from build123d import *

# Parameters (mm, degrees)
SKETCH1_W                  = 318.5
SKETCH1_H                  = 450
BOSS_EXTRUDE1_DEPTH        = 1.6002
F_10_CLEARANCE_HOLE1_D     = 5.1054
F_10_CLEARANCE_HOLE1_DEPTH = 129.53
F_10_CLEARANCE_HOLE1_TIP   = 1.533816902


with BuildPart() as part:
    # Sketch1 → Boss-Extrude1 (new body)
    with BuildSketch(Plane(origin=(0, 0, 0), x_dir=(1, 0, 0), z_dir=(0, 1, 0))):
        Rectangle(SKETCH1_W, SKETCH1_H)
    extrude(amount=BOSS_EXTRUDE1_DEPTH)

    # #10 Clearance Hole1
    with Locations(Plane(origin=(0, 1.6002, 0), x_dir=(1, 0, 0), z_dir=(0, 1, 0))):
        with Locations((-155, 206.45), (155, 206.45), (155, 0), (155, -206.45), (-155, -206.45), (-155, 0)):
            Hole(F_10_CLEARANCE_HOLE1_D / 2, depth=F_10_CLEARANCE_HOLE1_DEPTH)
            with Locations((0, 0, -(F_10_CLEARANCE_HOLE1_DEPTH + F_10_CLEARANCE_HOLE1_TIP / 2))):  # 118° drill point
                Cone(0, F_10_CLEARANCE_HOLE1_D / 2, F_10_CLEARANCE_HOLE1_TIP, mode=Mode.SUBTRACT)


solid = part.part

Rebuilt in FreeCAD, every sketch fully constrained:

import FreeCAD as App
import Part
import Sketcher
from FreeCAD import Vector


def add_polygon(sketch, points):
    """Adds a closed chain of lines whose ends are joined by coincident constraints."""
    first, n = sketch.GeometryCount, len(points)
    for a, b in zip(points, points[1:] + points[:1]):
        sketch.addGeometry(Part.LineSegment(App.Vector(*a, 0), App.Vector(*b, 0)), False)
    for i in range(n):
        sketch.addConstraint(Sketcher.Constraint("Coincident", first + i, 2, first + (i + 1) % n, 1))

doc = App.newDocument("Part")
body = doc.addObject("PartDesign::Body", "Body")

# Sketch on XZ plane
sketch1 = doc.addObject("Sketcher::SketchObject", "Sketch")
body.addObject(sketch1)
sketch1.AttachmentSupport = (doc.XZ_Plane, [""])
sketch1.MapMode = "FlatFace"
add_polygon(sketch1, [(-159, -225), (-159, 225), (159, 225), (159, -225)])  # lines 0-3
sketch1.addConstraint([
    Sketcher.Constraint("Vertical", 0),
    Sketcher.Constraint("Horizontal", 1),
    Sketcher.Constraint("Vertical", 2),
    Sketcher.Constraint("Horizontal", 3),
    Sketcher.Constraint("Symmetric", 0, 2, 2, 2, -1, 1),
    Sketcher.Constraint("DistanceY", 0, 1, 0, 2, 450.0),
    Sketcher.Constraint("DistanceX", 1, 1, 1, 2, 318.5),
])
pad1 = doc.addObject("PartDesign::Pad", "Pad")
body.addObject(pad1)
pad1.Profile = sketch1
pad1.Length = 1.6002
pad1.Reversed = True

# Sketch on XZ plane
sketch2 = doc.addObject("Sketcher::SketchObject", "Sketch001")
body.addObject(sketch2)
sketch2.AttachmentSupport = (doc.XZ_Plane, [""])
sketch2.MapMode = "FlatFace"
sketch2.AttachmentOffset = App.Placement(Vector(0, 0, -1.6002), App.Rotation())
sketch2.addGeometry([
    Part.Circle(Vector(-155, -206.4, 0), Vector(0, 0, 1), 2.6),  # 0
    Part.Circle(Vector(155, -206.4, 0), Vector(0, 0, 1), 2.6),  # 1
    Part.Circle(Vector(155, 0, 0), Vector(0, 0, 1), 2.6),  # 2
    Part.Circle(Vector(155, 206.4, 0), Vector(0, 0, 1), 2.6),  # 3
    Part.Circle(Vector(-155, 206.4, 0), Vector(0, 0, 1), 2.6),  # 4
    Part.Circle(Vector(-155, 0, 0), Vector(0, 0, 1), 2.6),  # 5
], False)
sketch2.addConstraint([
    Sketcher.Constraint("Equal", 0, 1),
    Sketcher.Constraint("Equal", 1, 2),
    Sketcher.Constraint("Equal", 2, 3),
    Sketcher.Constraint("Equal", 3, 4),
    Sketcher.Constraint("Equal", 4, 5),
    Sketcher.Constraint("Symmetric", 0, 3, 3, 3, -1, 1),
    Sketcher.Constraint("Symmetric", 1, 3, 4, 3, -1, 1),
    Sketcher.Constraint("Symmetric", 2, 3, 5, 3, -1, 1),
    Sketcher.Constraint("Symmetric", 0, 3, 1, 3, -2),
    Sketcher.Constraint("PointOnObject", 2, 3, -1),
    Sketcher.Constraint("Vertical", 1, 3, 2, 3),
    Sketcher.Constraint("DistanceX", 0, 3, -1, 1, 155.0),
    Sketcher.Constraint("Diameter", 0, 5.1054),
    Sketcher.Constraint("DistanceY", 1, 3, 3, 3, 412.9),
])
doc.recompute()
hole = doc.addObject("PartDesign::Hole", "Hole")
body.addObject(hole)
hole.Profile = sketch2
hole.ThreadType = "None"
hole.Diameter = 5.1054
hole.DepthType = "Dimension"
hole.Depth = 129.53
hole.DrillPoint = "Angled"
hole.DrillPointAngle = 118
hole.Reversed = True

doc.recompute()
